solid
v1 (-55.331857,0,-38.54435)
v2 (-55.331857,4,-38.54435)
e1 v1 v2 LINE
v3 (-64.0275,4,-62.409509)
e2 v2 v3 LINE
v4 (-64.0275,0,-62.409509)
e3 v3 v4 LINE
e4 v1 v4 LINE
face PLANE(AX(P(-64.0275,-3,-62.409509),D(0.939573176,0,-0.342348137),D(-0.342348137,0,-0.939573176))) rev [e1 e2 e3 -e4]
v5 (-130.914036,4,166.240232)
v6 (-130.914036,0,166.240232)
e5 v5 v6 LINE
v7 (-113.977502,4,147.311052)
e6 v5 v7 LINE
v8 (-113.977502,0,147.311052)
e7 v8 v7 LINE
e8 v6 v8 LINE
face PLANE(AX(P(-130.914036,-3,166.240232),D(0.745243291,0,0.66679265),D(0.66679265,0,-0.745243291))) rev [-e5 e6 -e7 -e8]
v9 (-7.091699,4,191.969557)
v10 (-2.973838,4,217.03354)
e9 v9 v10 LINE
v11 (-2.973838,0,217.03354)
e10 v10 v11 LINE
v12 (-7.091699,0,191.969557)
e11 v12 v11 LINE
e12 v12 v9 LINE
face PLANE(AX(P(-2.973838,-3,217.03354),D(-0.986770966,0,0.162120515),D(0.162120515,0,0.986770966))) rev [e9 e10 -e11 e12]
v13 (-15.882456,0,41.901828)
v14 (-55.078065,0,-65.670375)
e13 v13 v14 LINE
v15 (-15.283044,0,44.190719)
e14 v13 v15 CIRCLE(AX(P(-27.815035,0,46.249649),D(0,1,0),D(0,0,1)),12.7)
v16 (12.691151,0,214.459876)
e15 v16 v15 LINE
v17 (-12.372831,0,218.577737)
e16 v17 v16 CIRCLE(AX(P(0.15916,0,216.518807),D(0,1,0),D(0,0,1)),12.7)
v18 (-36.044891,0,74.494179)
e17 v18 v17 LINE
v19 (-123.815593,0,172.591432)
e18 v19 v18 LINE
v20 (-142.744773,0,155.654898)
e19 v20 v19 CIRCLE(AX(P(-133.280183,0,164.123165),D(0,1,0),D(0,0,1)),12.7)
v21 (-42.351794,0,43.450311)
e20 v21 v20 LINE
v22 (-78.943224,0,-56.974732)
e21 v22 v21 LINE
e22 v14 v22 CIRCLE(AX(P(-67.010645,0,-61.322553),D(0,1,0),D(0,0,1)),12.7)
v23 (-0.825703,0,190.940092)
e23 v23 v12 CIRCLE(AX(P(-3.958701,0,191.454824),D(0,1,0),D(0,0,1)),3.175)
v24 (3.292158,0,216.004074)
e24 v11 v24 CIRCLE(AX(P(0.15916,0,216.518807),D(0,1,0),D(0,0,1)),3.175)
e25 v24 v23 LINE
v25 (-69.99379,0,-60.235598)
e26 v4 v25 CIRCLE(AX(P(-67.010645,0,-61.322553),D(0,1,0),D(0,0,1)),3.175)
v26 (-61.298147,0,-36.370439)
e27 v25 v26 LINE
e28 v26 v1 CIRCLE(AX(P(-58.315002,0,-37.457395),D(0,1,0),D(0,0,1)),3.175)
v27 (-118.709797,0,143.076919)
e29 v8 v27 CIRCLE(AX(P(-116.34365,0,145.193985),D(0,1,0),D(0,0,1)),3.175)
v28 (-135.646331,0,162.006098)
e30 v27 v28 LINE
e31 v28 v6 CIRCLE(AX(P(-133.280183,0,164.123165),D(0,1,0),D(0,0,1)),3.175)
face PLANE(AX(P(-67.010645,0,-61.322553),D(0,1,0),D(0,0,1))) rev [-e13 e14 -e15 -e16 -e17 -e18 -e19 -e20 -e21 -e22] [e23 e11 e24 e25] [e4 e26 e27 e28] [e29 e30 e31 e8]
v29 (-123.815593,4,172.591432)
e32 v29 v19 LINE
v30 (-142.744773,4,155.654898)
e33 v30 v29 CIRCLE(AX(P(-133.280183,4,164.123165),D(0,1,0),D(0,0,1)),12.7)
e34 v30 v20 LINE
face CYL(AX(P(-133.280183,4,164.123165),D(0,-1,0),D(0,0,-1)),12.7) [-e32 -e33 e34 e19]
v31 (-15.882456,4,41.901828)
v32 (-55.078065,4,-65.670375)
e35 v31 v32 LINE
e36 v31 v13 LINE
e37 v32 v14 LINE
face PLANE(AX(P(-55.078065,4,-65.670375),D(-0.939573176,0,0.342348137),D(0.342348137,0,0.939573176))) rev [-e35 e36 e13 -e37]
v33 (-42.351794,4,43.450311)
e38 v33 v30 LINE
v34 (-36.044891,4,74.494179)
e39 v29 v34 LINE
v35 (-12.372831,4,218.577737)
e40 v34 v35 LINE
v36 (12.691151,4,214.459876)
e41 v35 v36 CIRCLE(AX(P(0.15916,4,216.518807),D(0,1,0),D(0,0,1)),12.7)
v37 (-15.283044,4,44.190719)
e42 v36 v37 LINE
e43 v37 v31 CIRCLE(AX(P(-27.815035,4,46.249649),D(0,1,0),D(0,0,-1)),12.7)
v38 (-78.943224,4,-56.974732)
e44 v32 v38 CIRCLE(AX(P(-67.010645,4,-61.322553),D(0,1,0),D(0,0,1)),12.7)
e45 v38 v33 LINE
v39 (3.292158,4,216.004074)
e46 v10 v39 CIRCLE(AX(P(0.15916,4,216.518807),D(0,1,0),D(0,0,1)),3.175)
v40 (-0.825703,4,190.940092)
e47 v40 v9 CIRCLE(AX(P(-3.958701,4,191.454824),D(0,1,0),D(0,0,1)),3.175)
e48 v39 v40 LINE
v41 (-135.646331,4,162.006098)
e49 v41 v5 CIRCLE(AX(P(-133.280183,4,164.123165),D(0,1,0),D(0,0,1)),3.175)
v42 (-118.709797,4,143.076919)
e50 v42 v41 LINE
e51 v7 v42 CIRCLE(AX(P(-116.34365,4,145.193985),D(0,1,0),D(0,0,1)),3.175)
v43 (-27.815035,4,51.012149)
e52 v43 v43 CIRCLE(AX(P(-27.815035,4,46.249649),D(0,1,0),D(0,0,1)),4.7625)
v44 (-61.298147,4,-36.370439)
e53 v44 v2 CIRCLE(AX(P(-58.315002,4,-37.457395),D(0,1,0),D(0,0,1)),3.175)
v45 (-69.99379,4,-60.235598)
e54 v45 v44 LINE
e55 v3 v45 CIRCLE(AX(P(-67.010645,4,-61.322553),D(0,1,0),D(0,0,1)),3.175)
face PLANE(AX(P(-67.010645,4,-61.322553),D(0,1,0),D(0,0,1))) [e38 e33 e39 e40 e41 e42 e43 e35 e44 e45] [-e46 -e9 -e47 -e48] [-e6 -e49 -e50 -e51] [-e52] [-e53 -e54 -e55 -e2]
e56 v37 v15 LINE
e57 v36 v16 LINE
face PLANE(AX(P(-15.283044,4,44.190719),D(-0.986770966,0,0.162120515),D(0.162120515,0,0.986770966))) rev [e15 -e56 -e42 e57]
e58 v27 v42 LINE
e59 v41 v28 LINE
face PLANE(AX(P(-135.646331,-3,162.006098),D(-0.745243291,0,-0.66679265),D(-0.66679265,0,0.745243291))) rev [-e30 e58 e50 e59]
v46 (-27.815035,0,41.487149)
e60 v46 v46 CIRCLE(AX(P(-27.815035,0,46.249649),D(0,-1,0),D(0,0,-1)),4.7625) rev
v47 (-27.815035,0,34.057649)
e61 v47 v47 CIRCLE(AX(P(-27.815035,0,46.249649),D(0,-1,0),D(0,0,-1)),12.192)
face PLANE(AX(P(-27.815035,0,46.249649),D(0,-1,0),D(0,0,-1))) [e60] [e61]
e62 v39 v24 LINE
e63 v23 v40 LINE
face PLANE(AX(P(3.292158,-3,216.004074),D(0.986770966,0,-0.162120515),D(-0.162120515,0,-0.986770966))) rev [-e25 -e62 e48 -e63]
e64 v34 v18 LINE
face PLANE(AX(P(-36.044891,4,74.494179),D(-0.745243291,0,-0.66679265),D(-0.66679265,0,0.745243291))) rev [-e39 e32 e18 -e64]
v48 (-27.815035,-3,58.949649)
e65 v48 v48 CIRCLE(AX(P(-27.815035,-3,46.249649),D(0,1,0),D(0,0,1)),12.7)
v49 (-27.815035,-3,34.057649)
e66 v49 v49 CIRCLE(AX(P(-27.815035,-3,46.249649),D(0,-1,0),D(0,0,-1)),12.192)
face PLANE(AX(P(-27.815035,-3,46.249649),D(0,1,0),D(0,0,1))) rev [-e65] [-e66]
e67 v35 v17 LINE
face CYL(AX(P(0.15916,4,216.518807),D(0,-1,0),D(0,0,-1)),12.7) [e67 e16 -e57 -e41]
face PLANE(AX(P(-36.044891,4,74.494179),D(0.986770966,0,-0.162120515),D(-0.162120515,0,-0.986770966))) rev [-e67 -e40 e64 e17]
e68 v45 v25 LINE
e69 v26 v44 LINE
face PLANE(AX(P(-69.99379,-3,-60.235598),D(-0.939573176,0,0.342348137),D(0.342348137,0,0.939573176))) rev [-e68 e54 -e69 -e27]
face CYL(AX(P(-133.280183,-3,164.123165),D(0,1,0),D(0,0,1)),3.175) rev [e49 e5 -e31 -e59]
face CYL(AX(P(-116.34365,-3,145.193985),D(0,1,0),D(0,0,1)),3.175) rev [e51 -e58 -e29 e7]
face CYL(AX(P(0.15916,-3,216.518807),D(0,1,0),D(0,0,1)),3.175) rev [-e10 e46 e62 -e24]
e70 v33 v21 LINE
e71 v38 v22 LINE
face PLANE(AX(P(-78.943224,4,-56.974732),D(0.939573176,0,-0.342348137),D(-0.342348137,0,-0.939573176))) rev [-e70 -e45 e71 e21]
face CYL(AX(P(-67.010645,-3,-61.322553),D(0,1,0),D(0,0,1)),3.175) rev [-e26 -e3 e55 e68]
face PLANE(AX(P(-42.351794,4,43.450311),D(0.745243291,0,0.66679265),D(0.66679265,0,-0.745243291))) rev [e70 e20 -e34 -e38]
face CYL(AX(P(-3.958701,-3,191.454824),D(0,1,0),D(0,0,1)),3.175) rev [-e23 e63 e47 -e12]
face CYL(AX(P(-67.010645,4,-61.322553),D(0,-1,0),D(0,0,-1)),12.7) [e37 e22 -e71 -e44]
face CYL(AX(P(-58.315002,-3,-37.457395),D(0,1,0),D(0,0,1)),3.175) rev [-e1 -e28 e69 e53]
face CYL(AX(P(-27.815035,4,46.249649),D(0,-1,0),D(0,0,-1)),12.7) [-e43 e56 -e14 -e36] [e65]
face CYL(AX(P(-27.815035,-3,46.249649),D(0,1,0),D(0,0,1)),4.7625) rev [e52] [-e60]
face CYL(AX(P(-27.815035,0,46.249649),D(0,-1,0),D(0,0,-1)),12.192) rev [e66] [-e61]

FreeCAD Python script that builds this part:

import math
import FreeCAD as App
import Part
import Sketcher
from FreeCAD import Vector
Q = App.Units.Quantity

doc = App.newDocument("Part")
body = doc.addObject("PartDesign::Body", "Body")

# Sketch on XZ plane
sketch1 = body.newObject("Sketcher::SketchObject", "Sketch")
sketch1.AttachmentSupport = (doc.getObject("XZ_Plane"), [""])
sketch1.MapMode = "FlatFace"
sketch1.addGeometry([
    Part.LineSegment(Vector(-15.882456, 41.901828, 0), Vector(-55.078065, -65.670375, 0)),  # 0
    Part.ArcOfCircle(Part.Circle(Vector(-67.010645, -61.322553, 0), Vector(0, 0, 1), 12.7), math.radians(159.98), math.radians(339.98)),  # 1
    Part.LineSegment(Vector(-78.943224, -56.974732, 0), Vector(-42.351794, 43.450311, 0)),  # 2
    Part.LineSegment(Vector(-42.351794, 43.450311, 0), Vector(-142.744773, 155.654898, 0)),  # 3
    Part.ArcOfCircle(Part.Circle(Vector(-133.280183, 164.123165, 0), Vector(0, 0, 1), 12.7), math.radians(41.82), math.radians(221.82)),  # 4
    Part.LineSegment(Vector(-123.815593, 172.591432, 0), Vector(-36.044891, 74.494179, 0)),  # 5
    Part.LineSegment(Vector(-36.044891, 74.494179, 0), Vector(-12.372831, 218.577737, 0)),  # 6
    Part.ArcOfCircle(Part.Circle(Vector(0.15916, 216.518807, 0), Vector(0, 0, 1), 12.7), math.radians(-9.33), math.radians(170.67)),  # 7
    Part.LineSegment(Vector(12.691151, 214.459876, 0), Vector(-15.283044, 44.190719, 0)),  # 8
    Part.ArcOfCircle(Part.Circle(Vector(-27.815035, 46.249649, 0), Vector(0, 0, 1), 12.7), math.radians(-20.02), math.radians(-9.33)),  # 9
], False)
sketch1.addConstraint([
    Sketcher.Constraint("Tangent", 0, 2, 1, 2),
    Sketcher.Constraint("Tangent", 1, 1, 2, 1),
    Sketcher.Constraint("Coincident", 2, 2, 3, 1),
    Sketcher.Constraint("Tangent", 3, 2, 4, 2),
    Sketcher.Constraint("Tangent", 4, 1, 5, 1),
    Sketcher.Constraint("Coincident", 5, 2, 6, 1),
    Sketcher.Constraint("Tangent", 6, 2, 7, 2),
    Sketcher.Constraint("Tangent", 7, 1, 8, 1),
    Sketcher.Constraint("Tangent", 8, 2, 9, 2),
    Sketcher.Constraint("Tangent", 9, 1, 0, 1),
    Sketcher.Constraint("Equal", 1, 4),
    Sketcher.Constraint("Equal", 4, 7),
    Sketcher.Constraint("Equal", 7, 9),
    Sketcher.Constraint("Parallel", 0, 2),
    Sketcher.Constraint("Parallel", 3, 5),
    Sketcher.Constraint("Parallel", 6, 8),
    Sketcher.Constraint("Radius", 1, Q("0.5 in")),
    Sketcher.Constraint("Angle", 0, Q("-110.02 deg")),
    Sketcher.Constraint("Angle", 3, Q("131.82 deg")),
    Sketcher.Constraint("Angle", 6, Q("80.67 deg")),
    Sketcher.Constraint("Distance", 0, Q("4.5075 in")),
    Sketcher.Constraint("DistanceX", 2, 2, 9, 1, Q("1.0420999 in")),
    Sketcher.Constraint("Distance", 6, Q("146.015199 mm")),
    Sketcher.Constraint("DistanceY", -1, 1, 3, 2, Q("155.654898 mm")),
    Sketcher.Constraint("DistanceX", 4, 1, 2, 2, Q("81.4638 mm")),
    Sketcher.Constraint("DistanceX", -1, 1, 7, 3, Q("0.15916 mm")),
])
pad1 = body.newObject("PartDesign::Pad", "Pad")
pad1.Profile = sketch1
pad1.Length = 4
pad1.Reversed = True

# Sketch on XZ plane
sketch2 = body.newObject("Sketcher::SketchObject", "Sketch001")
sketch2.AttachmentSupport = (doc.getObject("XZ_Plane"), [""])
sketch2.MapMode = "FlatFace"
sketch2.AttachmentOffset = App.Placement(Vector(0, 0, 3), App.Rotation())
sketch2.addGeometry(Part.Circle(Vector(-27.815035, 46.249649, 0), Vector(0, 0, 1), 12.7), False)
sketch2.addConstraint([
    Sketcher.Constraint("Diameter", 0, Q("1 in")),
    Sketcher.Constraint("DistanceY", -1, 1, 0, 3, Q("46.249649 mm")),
    Sketcher.Constraint("DistanceX", 0, 3, -1, 1, Q("27.815035 mm")),
])
pad2 = body.newObject("PartDesign::Pad", "Pad001")
pad2.Profile = sketch2
pad2.Length = 7
pad2.Reversed = True

# Sketch on XZ plane
sketch3 = body.newObject("Sketcher::SketchObject", "Sketch002")
sketch3.AttachmentSupport = (doc.getObject("XZ_Plane"), [""])
sketch3.MapMode = "FlatFace"
sketch3.AttachmentOffset = App.Placement(Vector(0, 0, -4), App.Rotation())
sketch3.addGeometry(Part.Circle(Vector(-27.815035, 46.249649, 0), Vector(0, 0, 1), 4.7625), False)
sketch3.addConstraint([
    Sketcher.Constraint("Diameter", 0, Q("0.375 in")),
    Sketcher.Constraint("DistanceY", -1, 1, 0, 3, Q("46.249649 mm")),
    Sketcher.Constraint("DistanceX", 0, 3, -1, 1, Q("27.815035 mm")),
])
pocket1 = body.newObject("PartDesign::Pocket", "Pocket")
pocket1.Profile = sketch3
pocket1.Type = "ThroughAll"
pocket1.Reversed = True

# Sketch on XZ plane
sketch4 = body.newObject("Sketcher::SketchObject", "Sketch003")
sketch4.AttachmentSupport = (doc.getObject("XZ_Plane"), [""])
sketch4.MapMode = "FlatFace"
sketch4.AttachmentOffset = App.Placement(Vector(0, 0, 3), App.Rotation())
sketch4.addGeometry(Part.Circle(Vector(-27.815035, 46.249649, 0), Vector(0, 0, 1), 12.192), False)
sketch4.addConstraint([
    Sketcher.Constraint("Diameter", 0, Q("0.96 in")),
    Sketcher.Constraint("DistanceY", -1, 1, 0, 3, Q("46.249649 mm")),
    Sketcher.Constraint("DistanceX", 0, 3, -1, 1, Q("27.815035 mm")),
])
pocket2 = body.newObject("PartDesign::Pocket", "Pocket001")
pocket2.Profile = sketch4
pocket2.Length = 3

# Sketch on XZ plane
sketch5 = body.newObject("Sketcher::SketchObject", "Sketch004")
sketch5.AttachmentSupport = (doc.getObject("XZ_Plane"), [""])
sketch5.MapMode = "FlatFace"
sketch5.AttachmentOffset = App.Placement(Vector(0, 0, -4), App.Rotation())
sketch5.addGeometry([
    Part.Circle(Vector(-67.010645, -61.322553, 0), Vector(0, 0, 1), 3.175),
    Part.Circle(Vector(0.15916, 216.518807, 0), Vector(0, 0, 1), 3.175),
    Part.Circle(Vector(-133.280183, 164.123165, 0), Vector(0, 0, 1), 3.175),
], False)
sketch5.addConstraint([
    Sketcher.Constraint("Equal", 0, 1),
    Sketcher.Constraint("Equal", 1, 2),
    Sketcher.Constraint("Diameter", 0, Q("0.25 in")),
    Sketcher.Constraint("DistanceX", -1, 1, 1, 3, Q("0.15916 mm")),
    Sketcher.Constraint("DistanceY", 0, 3, 1, 3, Q("277.84136 mm")),
    Sketcher.Constraint("DistanceX", 2, 3, 0, 3, Q("66.269538 mm")),
    Sketcher.Constraint("DistanceY", 0, 3, 2, 3, Q("225.445718 mm")),
    Sketcher.Constraint("DistanceX", 0, 3, -1, 1, Q("67.010645 mm")),
    Sketcher.Constraint("DistanceY", 0, 3, -1, 1, Q("61.322553 mm")),
])
pocket3 = body.newObject("PartDesign::Pocket", "Pocket002")
pocket3.Profile = sketch5
pocket3.Type = "ThroughAll"
pocket3.Reversed = True

# Sketch on XZ plane
sketch6 = body.newObject("Sketcher::SketchObject", "Sketch005")
sketch6.AttachmentSupport = (doc.getObject("XZ_Plane"), [""])
sketch6.MapMode = "FlatFace"
sketch6.AttachmentOffset = App.Placement(Vector(0, 0, -4), App.Rotation())
sketch6.addGeometry([
    Part.LineSegment(Vector(-55.331857, -38.54435, 0), Vector(-64.0275, -62.409509, 0)),  # 0
    Part.ArcOfCircle(Part.Circle(Vector(-67.010645, -61.322553, 0), Vector(0, 0, 1), 3.175), math.radians(159.98), math.radians(339.98)),  # 1
    Part.LineSegment(Vector(-69.99379, -60.235598, 0), Vector(-61.298147, -36.370439, 0)),  # 2
    Part.ArcOfCircle(Part.Circle(Vector(-58.315002, -37.457395, 0), Vector(0, 0, 1), 3.175), math.radians(-20.02), math.radians(159.98)),  # 3
    Part.LineSegment(Vector(-118.709797, 143.076919, 0), Vector(-135.646331, 162.006098, 0)),  # 4
    Part.ArcOfCircle(Part.Circle(Vector(-133.280183, 164.123165, 0), Vector(0, 0, 1), 3.175), math.radians(41.82), math.radians(221.82)),  # 5
    Part.LineSegment(Vector(-130.914036, 166.240232, 0), Vector(-113.977502, 147.311052, 0)),  # 6
    Part.ArcOfCircle(Part.Circle(Vector(-116.34365, 145.193985, 0), Vector(0, 0, 1), 3.175), math.radians(-138.18), math.radians(41.82)),  # 7
    Part.LineSegment(Vector(-7.091699, 191.969557, 0), Vector(-2.973838, 217.03354, 0)),  # 8
    Part.ArcOfCircle(Part.Circle(Vector(0.15916, 216.518807, 0), Vector(0, 0, 1), 3.175), math.radians(-9.33), math.radians(170.67)),  # 9
    Part.LineSegment(Vector(3.292158, 216.004074, 0), Vector(-0.825703, 190.940092, 0)),  # 10
    Part.ArcOfCircle(Part.Circle(Vector(-3.958701, 191.454824, 0), Vector(0, 0, 1), 3.175), math.radians(170.67), math.radians(350.67)),  # 11
], False)
sketch6.addConstraint([
    Sketcher.Constraint("Tangent", 0, 2, 1, 2),
    Sketcher.Constraint("Tangent", 1, 1, 2, 1),
    Sketcher.Constraint("Tangent", 2, 2, 3, 2),
    Sketcher.Constraint("Tangent", 3, 1, 0, 1),
    Sketcher.Constraint("Tangent", 4, 2, 5, 2),
    Sketcher.Constraint("Tangent", 5, 1, 6, 1),
    Sketcher.Constraint("Tangent", 6, 2, 7, 2),
    Sketcher.Constraint("Tangent", 7, 1, 4, 1),
    Sketcher.Constraint("Tangent", 8, 2, 9, 2),
    Sketcher.Constraint("Tangent", 9, 1, 10, 1),
    Sketcher.Constraint("Tangent", 10, 2, 11, 2),
    Sketcher.Constraint("Tangent", 11, 1, 8, 1),
    Sketcher.Constraint("Equal", 1, 3),
    Sketcher.Constraint("Equal", 3, 5),
    Sketcher.Constraint("Equal", 5, 7),
    Sketcher.Constraint("Equal", 7, 9),
    Sketcher.Constraint("Equal", 9, 11),
    Sketcher.Constraint("Equal", 2, 4),
    Sketcher.Constraint("Equal", 6, 8),
    Sketcher.Constraint("Distance", 0, Q("1 in")),
    Sketcher.Constraint("Radius", 1, Q("0.125 in")),
    Sketcher.Constraint("Angle", 0, Q("-110.02 deg")),
    Sketcher.Constraint("Angle", 4, Q("131.82 deg")),
    Sketcher.Constraint("Angle", 8, Q("80.67 deg")),
    Sketcher.Constraint("DistanceY", 2, 2, 4, 2, Q("7.8100999 in")),
    Sketcher.Constraint("DistanceX", 11, 3, -1, 1, Q("3.958701 mm")),
    Sketcher.Constraint("DistanceX", 0, 2, -1, 1, Q("64.0275 mm")),
    Sketcher.Constraint("DistanceY", 1, 1, -1, 1, Q("60.235598 mm")),
    Sketcher.Constraint("DistanceY", 3, 3, 9, 3, Q("253.976202 mm")),
    Sketcher.Constraint("DistanceX", 6, 2, 11, 3, Q("110.018801 mm")),
])
pocket4 = body.newObject("PartDesign::Pocket", "Pocket003")
pocket4.Profile = sketch6
pocket4.Type = "ThroughAll"
pocket4.Reversed = True

doc.recompute()
